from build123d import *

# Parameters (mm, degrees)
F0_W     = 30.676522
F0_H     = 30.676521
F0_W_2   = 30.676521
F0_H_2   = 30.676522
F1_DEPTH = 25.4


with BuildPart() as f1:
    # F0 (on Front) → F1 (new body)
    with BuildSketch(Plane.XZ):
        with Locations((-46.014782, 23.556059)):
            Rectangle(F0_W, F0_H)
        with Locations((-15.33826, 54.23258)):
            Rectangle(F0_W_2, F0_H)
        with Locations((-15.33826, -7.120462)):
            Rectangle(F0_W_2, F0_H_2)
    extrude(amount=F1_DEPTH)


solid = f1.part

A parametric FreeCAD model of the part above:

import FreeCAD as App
import Part
import Sketcher
from FreeCAD import Vector
Q = App.Units.Quantity


def add_polygon(sketch, points):
    """Adds a closed chain of lines whose ends are joined by coincident constraints."""
    first, n = sketch.GeometryCount, len(points)
    for a, b in zip(points, points[1:] + points[:1]):
        sketch.addGeometry(Part.LineSegment(App.Vector(*a, 0), App.Vector(*b, 0)), False)
    for i in range(n):
        sketch.addConstraint(Sketcher.Constraint("Coincident", first + i, 2, first + (i + 1) % n, 1))

doc = App.newDocument("Part")
body = doc.addObject("PartDesign::Body", "Body")
body.AllowCompound = True

sketch1 = body.newObject("Sketcher::SketchObject", "Sketch")
sketch1.AttachmentSupport = (doc.getObject("XZ_Plane"), [""])
sketch1.MapMode = "FlatFace"
add_polygon(sketch1, [(-61, 39), (-61, 8), (-31, 8), (-31, 39)])
add_polygon(sketch1, [(-31, 70), (-31, 39), (0, 39), (0, 70)])
add_polygon(sketch1, [(-31, 8), (-31, -22), (0, -22), (0, 8)])
sketch1.addConstraint([
    Sketcher.Constraint("Vertical", 0),
    Sketcher.Constraint("Horizontal", 1),
    Sketcher.Constraint("Vertical", 2),
    Sketcher.Constraint("Horizontal", 3),
    Sketcher.Constraint("Vertical", 4),
    Sketcher.Constraint("Horizontal", 5),
    Sketcher.Constraint("Vertical", 6),
    Sketcher.Constraint("Horizontal", 7),
    Sketcher.Constraint("Vertical", 8),
    Sketcher.Constraint("Horizontal", 9),
    Sketcher.Constraint("Vertical", 10),
    Sketcher.Constraint("Horizontal", 11),
    Sketcher.Constraint("Coincident", 4, 2, 2, 2),
    Sketcher.Constraint("Coincident", 11, 2, 1, 2),
    Sketcher.Constraint("PointOnObject", 5, 2, -2),
    Sketcher.Constraint("PointOnObject", 9, 2, -2),
    Sketcher.Constraint("Equal", 3, 5),
    Sketcher.Constraint("Equal", 11, 0),
    Sketcher.Constraint("Equal", 2, 4),
    Sketcher.Constraint("Equal", 6, 8),
    Sketcher.Constraint("DistanceX", 1, 1, 1, 2, Q("30.676522 mm")),
    Sketcher.Constraint("DistanceY", -1, 1, 0, 2, Q("8.217799 mm")),
])
pad1 = body.newObject("PartDesign::Pad", "Pad")
pad1.Profile = sketch1
pad1.Length = Q("1 in")

doc.recompute()
